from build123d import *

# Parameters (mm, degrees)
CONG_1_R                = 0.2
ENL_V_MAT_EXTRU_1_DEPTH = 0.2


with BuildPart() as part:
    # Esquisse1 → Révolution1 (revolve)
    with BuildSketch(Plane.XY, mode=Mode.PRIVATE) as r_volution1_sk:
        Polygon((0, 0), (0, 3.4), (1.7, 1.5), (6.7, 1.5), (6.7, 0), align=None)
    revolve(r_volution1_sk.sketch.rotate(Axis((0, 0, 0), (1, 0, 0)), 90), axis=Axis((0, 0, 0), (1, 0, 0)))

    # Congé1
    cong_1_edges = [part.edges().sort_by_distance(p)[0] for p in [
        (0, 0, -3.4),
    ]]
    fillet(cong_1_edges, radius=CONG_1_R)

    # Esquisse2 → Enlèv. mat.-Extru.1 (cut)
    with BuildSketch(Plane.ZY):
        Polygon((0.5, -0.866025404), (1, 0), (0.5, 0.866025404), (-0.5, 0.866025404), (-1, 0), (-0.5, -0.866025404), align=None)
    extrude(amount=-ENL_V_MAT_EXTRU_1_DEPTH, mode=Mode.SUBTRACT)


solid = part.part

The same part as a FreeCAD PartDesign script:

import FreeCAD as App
import Part
import Sketcher

V = App.Vector
Q = App.Units.Quantity


def edges_at(feature, points):
    """Names of the edges that pass closest to the given points."""
    edges = feature.Shape.Edges
    near = lambda p: min(range(len(edges)), key=lambda i: edges[i].distToShape(Part.Vertex(*p))[0])
    return sorted({f"Edge{near(p) + 1}" for p in points})


def add_polygon(sketch, points):
    """Adds a closed chain of lines whose ends are joined by coincident constraints."""
    first, n = sketch.GeometryCount, len(points)
    for a, b in zip(points, points[1:] + points[:1]):
        sketch.addGeometry(Part.LineSegment(App.Vector(*a, 0), App.Vector(*b, 0)), False)
    for i in range(n):
        sketch.addConstraint(Sketcher.Constraint("Coincident", first + i, 2, first + (i + 1) % n, 1))

doc = App.newDocument("Part")
params = doc.addObject("Spreadsheet::Sheet", "Params")
for row, (alias, value) in enumerate([
    ("sketch1_width", "5 mm"),
    ("sketch1_width2", "6.7 mm"),
    ("sketch1_height", "3.4 mm"),
    ("sketch1_height2", "1.5 mm"),
    ("revolution_angle", "360 deg"),
    ("fillet_radius", "0.2 mm"),
    ("sketch2_height", "1 mm"),
    ("sketch2_length", "1 mm"),
    ("pocket1_length", "0.2 mm"),
], start=1):
    params.set(f"A{row}", alias)
    params.set(f"B{row}", "=" + value)
    params.setAlias(f"B{row}", alias)

body = doc.addObject("PartDesign::Body", "Body")

sketch1 = body.newObject("Sketcher::SketchObject", "Sketch")
sketch1.AttachmentSupport = (doc.getObject("XY_Plane"), [""])
sketch1.MapMode = "FlatFace"
add_polygon(sketch1, [(0, 3.4), (0, 0), (6.7, 0), (6.7, 1.5), (1.7, 1.5)])
sketch1.addConstraint([
    Sketcher.Constraint("Vertical", 0),
    Sketcher.Constraint("Horizontal", 1),
    Sketcher.Constraint("Vertical", 2),
    Sketcher.Constraint("Horizontal", 3),
    Sketcher.Constraint("Coincident", 0, 2, -1, 1),
    Sketcher.Constraint("DistanceX", 3, 2, 3, 1, 5.0),
    Sketcher.Constraint("DistanceX", 1, 1, 1, 2, 6.7),
    Sketcher.Constraint("DistanceY", 0, 2, 0, 1, 3.4),
    Sketcher.Constraint("DistanceY", 2, 1, 2, 2, 1.5),
])
sketch1.setExpression("Constraints[10]", "Params.sketch1_width")
sketch1.setExpression("Constraints[11]", "Params.sketch1_width2")
sketch1.setExpression("Constraints[12]", "Params.sketch1_height")
sketch1.setExpression("Constraints[13]", "Params.sketch1_height2")
revolution = body.newObject("PartDesign::Revolution", "Revolution")
revolution.Profile = sketch1
revolution.ReferenceAxis = (sketch1, ["H_Axis"])
revolution.setExpression("Angle", "Params.revolution_angle")
doc.recompute()

fillet = body.newObject("PartDesign::Fillet", "Fillet")
fillet.Base = (revolution, edges_at(revolution, [(0, 0, -3.4)]))
fillet.setExpression("Radius", "Params.fillet_radius")

sketch2 = body.newObject("Sketcher::SketchObject", "Sketch001")
sketch2.AttachmentSupport = (doc.getObject("YZ_Plane"), [""])
sketch2.MapMode = "FlatFace"
add_polygon(sketch2, [(-0.9, 0.5), (0, 1), (0.9, 0.5), (0.9, -0.5), (0, -1), (-0.9, -0.5)])
sketch2.addConstraint([
    Sketcher.Constraint("Vertical", 2),
    Sketcher.Constraint("Vertical", 5),
    Sketcher.Constraint("Symmetric", 0, 2, 3, 2, -1, 1),
    Sketcher.Constraint("Symmetric", 1, 2, 4, 2, -1, 1),
    Sketcher.Constraint("PointOnObject", 0, 2, -2),
    Sketcher.Constraint("Parallel", 0, 3),
    Sketcher.Constraint("Horizontal", 2, 2, 4, 2),
    Sketcher.Constraint("DistanceY", 2, 2, 2, 1, 1.0),
    Sketcher.Constraint("Angle", 0, Q("30 deg")),
    Sketcher.Constraint("Distance", 0, 1.0),
])
sketch2.setExpression("Constraints[13]", "Params.sketch2_height")
sketch2.setExpression("Constraints[15]", "Params.sketch2_length")
pocket1 = body.newObject("PartDesign::Pocket", "Pocket")
pocket1.Profile = sketch2
pocket1.setExpression("Length", "Params.pocket1_length")
pocket1.Reversed = True

doc.recompute()
